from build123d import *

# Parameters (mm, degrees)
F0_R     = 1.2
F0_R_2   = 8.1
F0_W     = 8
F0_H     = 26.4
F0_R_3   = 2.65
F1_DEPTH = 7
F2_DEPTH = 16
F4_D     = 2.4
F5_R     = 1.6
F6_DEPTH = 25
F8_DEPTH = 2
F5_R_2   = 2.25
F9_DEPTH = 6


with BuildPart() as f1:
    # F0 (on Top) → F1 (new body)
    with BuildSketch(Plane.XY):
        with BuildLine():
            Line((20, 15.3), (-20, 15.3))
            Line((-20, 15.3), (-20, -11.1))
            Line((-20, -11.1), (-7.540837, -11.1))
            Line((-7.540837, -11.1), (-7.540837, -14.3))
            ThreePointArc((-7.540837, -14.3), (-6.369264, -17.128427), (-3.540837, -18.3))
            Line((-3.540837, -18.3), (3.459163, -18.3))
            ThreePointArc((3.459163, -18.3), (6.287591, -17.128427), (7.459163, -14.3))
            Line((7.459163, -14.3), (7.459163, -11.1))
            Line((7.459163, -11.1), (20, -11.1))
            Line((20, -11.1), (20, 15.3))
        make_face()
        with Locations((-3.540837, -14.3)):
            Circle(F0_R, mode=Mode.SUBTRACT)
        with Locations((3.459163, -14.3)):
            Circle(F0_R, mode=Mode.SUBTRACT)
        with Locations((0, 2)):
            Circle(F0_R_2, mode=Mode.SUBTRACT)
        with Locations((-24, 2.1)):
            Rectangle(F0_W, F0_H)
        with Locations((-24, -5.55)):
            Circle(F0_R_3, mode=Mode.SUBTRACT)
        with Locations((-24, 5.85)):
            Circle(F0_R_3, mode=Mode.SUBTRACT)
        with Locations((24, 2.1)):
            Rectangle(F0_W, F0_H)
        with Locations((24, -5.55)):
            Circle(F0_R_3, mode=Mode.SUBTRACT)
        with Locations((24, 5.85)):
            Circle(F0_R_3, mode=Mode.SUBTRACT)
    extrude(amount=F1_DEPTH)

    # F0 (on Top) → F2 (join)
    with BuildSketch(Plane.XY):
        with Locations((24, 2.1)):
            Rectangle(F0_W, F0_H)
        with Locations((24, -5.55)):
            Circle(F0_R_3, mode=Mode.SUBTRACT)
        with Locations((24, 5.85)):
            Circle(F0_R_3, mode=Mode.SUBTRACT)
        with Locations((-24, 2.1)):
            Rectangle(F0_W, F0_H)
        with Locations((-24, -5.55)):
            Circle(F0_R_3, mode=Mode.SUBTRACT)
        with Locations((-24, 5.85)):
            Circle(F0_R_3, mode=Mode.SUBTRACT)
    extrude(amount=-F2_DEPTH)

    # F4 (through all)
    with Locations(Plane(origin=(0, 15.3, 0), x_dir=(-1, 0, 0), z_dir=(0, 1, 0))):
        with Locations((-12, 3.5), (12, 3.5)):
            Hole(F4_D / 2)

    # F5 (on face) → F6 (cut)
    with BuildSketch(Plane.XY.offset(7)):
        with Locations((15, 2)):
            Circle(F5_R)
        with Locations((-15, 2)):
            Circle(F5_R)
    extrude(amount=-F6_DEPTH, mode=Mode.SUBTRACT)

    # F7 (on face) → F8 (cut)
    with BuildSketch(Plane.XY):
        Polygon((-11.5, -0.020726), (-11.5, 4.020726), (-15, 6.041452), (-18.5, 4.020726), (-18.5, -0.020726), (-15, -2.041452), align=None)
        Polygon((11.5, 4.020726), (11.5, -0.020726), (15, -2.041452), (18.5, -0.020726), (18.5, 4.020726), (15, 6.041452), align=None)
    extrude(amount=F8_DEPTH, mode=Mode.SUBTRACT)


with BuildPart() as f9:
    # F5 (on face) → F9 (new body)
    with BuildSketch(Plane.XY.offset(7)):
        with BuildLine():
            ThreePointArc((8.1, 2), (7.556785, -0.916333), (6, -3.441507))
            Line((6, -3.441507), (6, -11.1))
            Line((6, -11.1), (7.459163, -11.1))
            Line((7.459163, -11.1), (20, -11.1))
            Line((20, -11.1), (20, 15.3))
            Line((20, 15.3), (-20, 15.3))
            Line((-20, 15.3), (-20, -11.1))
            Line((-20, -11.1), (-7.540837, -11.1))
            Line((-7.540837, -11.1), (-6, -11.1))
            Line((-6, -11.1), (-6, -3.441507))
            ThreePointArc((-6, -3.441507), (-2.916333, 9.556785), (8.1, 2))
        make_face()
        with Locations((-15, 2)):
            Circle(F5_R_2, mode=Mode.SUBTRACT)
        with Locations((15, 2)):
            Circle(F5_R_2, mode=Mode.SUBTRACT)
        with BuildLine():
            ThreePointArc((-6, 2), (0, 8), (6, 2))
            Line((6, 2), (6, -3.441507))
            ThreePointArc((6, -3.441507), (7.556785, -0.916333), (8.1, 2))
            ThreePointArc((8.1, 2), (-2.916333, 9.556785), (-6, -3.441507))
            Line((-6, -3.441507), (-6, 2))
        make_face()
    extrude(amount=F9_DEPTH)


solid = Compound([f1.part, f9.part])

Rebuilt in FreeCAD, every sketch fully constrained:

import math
import FreeCAD as App
import Part
import Sketcher
from FreeCAD import Vector
Q = App.Units.Quantity

doc = App.newDocument("Part")
body = doc.addObject("PartDesign::Body", "Body")

# Sketch on XY plane
sketch1 = body.newObject("Sketcher::SketchObject", "Sketch")
sketch1.AttachmentSupport = (doc.getObject("XY_Plane"), [""])
sketch1.MapMode = "FlatFace"
sketch1.addGeometry([
    Part.LineSegment(Vector(-28, 15.3, 0), Vector(-28, -11.1, 0)),  # 0
    Part.LineSegment(Vector(-28, -11.1, 0), Vector(-7.5, -11.1, 0)),  # 1
    Part.LineSegment(Vector(-7.5, -11.1, 0), Vector(-7.5, -14.3, 0)),  # 2
    Part.ArcOfCircle(Part.Circle(Vector(-3.5, -14.3, 0), Vector(0, 0, 1), 4), math.radians(-180), math.radians(-90)),  # 3
    Part.LineSegment(Vector(-3.5, -18.3, 0), Vector(3.5, -18.3, 0)),  # 4
    Part.ArcOfCircle(Part.Circle(Vector(3.5, -14.3, 0), Vector(0, 0, 1), 4), math.radians(-90), math.radians(0)),  # 5
    Part.LineSegment(Vector(7.5, -14.3, 0), Vector(7.5, -11.1, 0)),  # 6
    Part.LineSegment(Vector(7.5, -11.1, 0), Vector(28, -11.1, 0)),  # 7
    Part.LineSegment(Vector(28, -11.1, 0), Vector(28, 15.3, 0)),  # 8
    Part.LineSegment(Vector(28, 15.3, 0), Vector(-28, 15.3, 0)),  # 9
    Part.Circle(Vector(-3.5, -14.3, 0), Vector(0, 0, 1), 1.2),  # 10
    Part.Circle(Vector(-24, -5.5, 0), Vector(0, 0, 1), 2.6),  # 11
    Part.Circle(Vector(3.5, -14.3, 0), Vector(0, 0, 1), 1.2),  # 12
    Part.Circle(Vector(24, -5.5, 0), Vector(0, 0, 1), 2.6),  # 13
    Part.Circle(Vector(-24, 5.8, 0), Vector(0, 0, 1), 2.6),  # 14
    Part.Circle(Vector(0, 2, 0), Vector(0, 0, 1), 8.1),  # 15
    Part.Circle(Vector(24, 5.8, 0), Vector(0, 0, 1), 2.6),  # 16
], False)
sketch1.addConstraint([
    Sketcher.Constraint("Coincident", 0, 2, 1, 1),
    Sketcher.Constraint("Coincident", 1, 2, 2, 1),
    Sketcher.Constraint("Tangent", 2, 2, 3, 1),
    Sketcher.Constraint("Tangent", 3, 2, 4, 1),
    Sketcher.Constraint("Tangent", 4, 2, 5, 1),
    Sketcher.Constraint("Tangent", 5, 2, 6, 1),
    Sketcher.Constraint("Coincident", 6, 2, 7, 1),
    Sketcher.Constraint("Coincident", 7, 2, 8, 1),
    Sketcher.Constraint("Coincident", 8, 2, 9, 1),
    Sketcher.Constraint("Coincident", 9, 2, 0, 1),
    Sketcher.Constraint("Vertical", 0),
    Sketcher.Constraint("Horizontal", 1),
    Sketcher.Constraint("Vertical", 2),
    Sketcher.Constraint("Horizontal", 4),
    Sketcher.Constraint("Vertical", 6),
    Sketcher.Constraint("Horizontal", 7),
    Sketcher.Constraint("Vertical", 8),
    Sketcher.Constraint("Horizontal", 9),
    Sketcher.Constraint("Coincident", 10, 3, 3, 3),
    Sketcher.Constraint("Coincident", 12, 3, 5, 3),
    Sketcher.Constraint("Equal", 3, 5),
    Sketcher.Constraint("Equal", 10, 12),
    Sketcher.Constraint("Equal", 11, 13),
    Sketcher.Constraint("Equal", 13, 14),
    Sketcher.Constraint("Equal", 14, 16),
    Sketcher.Constraint("Symmetric", 11, 3, 13, 3, -2),
    Sketcher.Constraint("Symmetric", 14, 3, 16, 3, -2),
    Sketcher.Constraint("Symmetric", 0, 2, 7, 2, -2),
    Sketcher.Constraint("PointOnObject", 15, 3, -2),
    Sketcher.Constraint("Vertical", 11, 3, 14, 3),
    Sketcher.Constraint("Radius", 3, 4.0),
    Sketcher.Constraint("Diameter", 10, 2.4),
    Sketcher.Constraint("Diameter", 11, 5.3),
    Sketcher.Constraint("Diameter", 15, 16.2),
    Sketcher.Constraint("DistanceX", 4, 1, 4, 2, 7.0),
    Sketcher.Constraint("DistanceX", 9, 2, 9, 1, 56.0),
    Sketcher.Constraint("DistanceY", 0, 2, 0, 1, 26.4),
    Sketcher.Constraint("DistanceY", 2, 2, 2, 1, 3.2),
    Sketcher.Constraint("DistanceX", 11, 3, -1, 1, 24.0),
    Sketcher.Constraint("DistanceY", -1, 1, 15, 3, 2.0),
    Sketcher.Constraint("DistanceY", 3, 3, -1, 1, 14.3),
    Sketcher.Constraint("DistanceY", 11, 3, 14, 3, 11.4),
    Sketcher.Constraint("DistanceY", 11, 3, -1, 1, 5.55),
    Sketcher.Constraint("DistanceX", 1, 1, 1, 2, 20.459163),
])
pad1 = body.newObject("PartDesign::Pad", "Pad")
pad1.Profile = sketch1
pad1.Length = 7

# Sketch on XY plane
sketch2 = body.newObject("Sketcher::SketchObject", "Sketch001")
sketch2.AttachmentSupport = (doc.getObject("XY_Plane"), [""])
sketch2.MapMode = "FlatFace"
sketch2.addGeometry([
    Part.LineSegment(Vector(20, 15.3, 0), Vector(20, -11.1, 0)),  # 0
    Part.LineSegment(Vector(20, -11.1, 0), Vector(28, -11.1, 0)),  # 1
    Part.LineSegment(Vector(28, -11.1, 0), Vector(28, 15.3, 0)),  # 2
    Part.LineSegment(Vector(28, 15.3, 0), Vector(20, 15.3, 0)),  # 3
    Part.Circle(Vector(24, -5.5, 0), Vector(0, 0, 1), 2.6),  # 4
    Part.Circle(Vector(24, 5.8, 0), Vector(0, 0, 1), 2.6),  # 5
    Part.LineSegment(Vector(-28, 15.3, 0), Vector(-28, -11.1, 0)),  # 6
    Part.LineSegment(Vector(-28, -11.1, 0), Vector(-20, -11.1, 0)),  # 7
    Part.LineSegment(Vector(-20, -11.1, 0), Vector(-20, 15.3, 0)),  # 8
    Part.LineSegment(Vector(-20, 15.3, 0), Vector(-28, 15.3, 0)),  # 9
    Part.Circle(Vector(-24, -5.5, 0), Vector(0, 0, 1), 2.6),  # 10
    Part.Circle(Vector(-24, 5.8, 0), Vector(0, 0, 1), 2.6),  # 11
], False)
sketch2.addConstraint([
    Sketcher.Constraint("Coincident", 0, 2, 1, 1),
    Sketcher.Constraint("Coincident", 1, 2, 2, 1),
    Sketcher.Constraint("Coincident", 2, 2, 3, 1),
    Sketcher.Constraint("Coincident", 3, 2, 0, 1),
    Sketcher.Constraint("Coincident", 6, 2, 7, 1),
    Sketcher.Constraint("Coincident", 7, 2, 8, 1),
    Sketcher.Constraint("Coincident", 8, 2, 9, 1),
    Sketcher.Constraint("Coincident", 9, 2, 6, 1),
    Sketcher.Constraint("Vertical", 0),
    Sketcher.Constraint("Horizontal", 1),
    Sketcher.Constraint("Vertical", 2),
    Sketcher.Constraint("Horizontal", 3),
    Sketcher.Constraint("Vertical", 6),
    Sketcher.Constraint("Horizontal", 7),
    Sketcher.Constraint("Vertical", 8),
    Sketcher.Constraint("Horizontal", 9),
    Sketcher.Constraint("Equal", 4, 5),
    Sketcher.Constraint("Equal", 5, 10),
    Sketcher.Constraint("Equal", 10, 11),
    Sketcher.Constraint("Symmetric", 4, 3, 10, 3, -2),
    Sketcher.Constraint("Symmetric", 5, 3, 11, 3, -2),
    Sketcher.Constraint("Symmetric", 1, 2, 6, 2, -2),
    Sketcher.Constraint("Symmetric", 3, 2, 8, 2, -2),
    Sketcher.Constraint("Vertical", 4, 3, 5, 3),
    Sketcher.Constraint("Diameter", 4, 5.3),
    Sketcher.Constraint("DistanceX", 1, 1, 1, 2, 8.0),
    Sketcher.Constraint("DistanceY", 0, 2, 0, 1, 26.4),
    Sketcher.Constraint("DistanceX", -1, 1, 4, 3, 24.0),
    Sketcher.Constraint("DistanceX", -1, 1, 0, 2, 20.0),
    Sketcher.Constraint("DistanceY", 0, 2, -1, 1, 11.1),
    Sketcher.Constraint("DistanceY", 4, 3, 5, 3, 11.4),
    Sketcher.Constraint("DistanceY", 4, 3, -1, 1, 5.55),
])
pad2 = body.newObject("PartDesign::Pad", "Pad001")
pad2.Profile = sketch2
pad2.Length = 16
pad2.Reversed = True

# Sketch on XZ plane
sketch3 = body.newObject("Sketcher::SketchObject", "Sketch002")
sketch3.AttachmentSupport = (doc.getObject("XZ_Plane"), [""])
sketch3.MapMode = "FlatFace"
sketch3.AttachmentOffset = App.Placement(Vector(0, 0, -15.3), App.Rotation())
sketch3.addGeometry([
    Part.Circle(Vector(12, 3.5, 0), Vector(0, 0, 1), 1.2),
    Part.Circle(Vector(-12, 3.5, 0), Vector(0, 0, 1), 1.2),
], False)
sketch3.addConstraint([
    Sketcher.Constraint("Equal", 0, 1),
    Sketcher.Constraint("Symmetric", 0, 3, 1, 3, -2),
    Sketcher.Constraint("Diameter", 0, 2.4),
    Sketcher.Constraint("DistanceX", -1, 1, 0, 3, 12.0),
    Sketcher.Constraint("DistanceY", -1, 1, 0, 3, 3.5),
])
doc.recompute()
hole = body.newObject("PartDesign::Hole", "Hole")
hole.Profile = sketch3
hole.ThreadType = "None"
hole.Diameter = 2.4
hole.DepthType = "ThroughAll"
hole.Reversed = True

# Sketch on XY plane
sketch4 = body.newObject("Sketcher::SketchObject", "Sketch003")
sketch4.AttachmentSupport = (doc.getObject("XY_Plane"), [""])
sketch4.MapMode = "FlatFace"
sketch4.AttachmentOffset = App.Placement(Vector(0, 0, 7), App.Rotation())
sketch4.addGeometry([
    Part.Circle(Vector(15, 2, 0), Vector(0, 0, 1), 1.6),
    Part.Circle(Vector(-15, 2, 0), Vector(0, 0, 1), 1.6),
], False)
sketch4.addConstraint([
    Sketcher.Constraint("Equal", 0, 1),
    Sketcher.Constraint("Symmetric", 0, 3, 1, 3, -2),
    Sketcher.Constraint("Diameter", 0, 3.2),
    Sketcher.Constraint("DistanceX", -1, 1, 0, 3, 15.0),
    Sketcher.Constraint("DistanceY", -1, 1, 0, 3, 2.0),
])
pocket1 = body.newObject("PartDesign::Pocket", "Pocket")
pocket1.Profile = sketch4
pocket1.Length = 25

# Sketch on XY plane
sketch5 = body.newObject("Sketcher::SketchObject", "Sketch004")
sketch5.AttachmentSupport = (doc.getObject("XY_Plane"), [""])
sketch5.MapMode = "FlatFace"
sketch5.addGeometry([
    Part.LineSegment(Vector(-11.5, 0, 0), Vector(-11.5, 4, 0)),  # 0
    Part.LineSegment(Vector(-11.5, 4, 0), Vector(-15, 6, 0)),  # 1
    Part.LineSegment(Vector(-15, 6, 0), Vector(-18.5, 4, 0)),  # 2
    Part.LineSegment(Vector(-18.5, 4, 0), Vector(-18.5, 0, 0)),  # 3
    Part.LineSegment(Vector(-18.5, 0, 0), Vector(-15, -2, 0)),  # 4
    Part.LineSegment(Vector(-15, -2, 0), Vector(-11.5, 0, 0)),  # 5
    Part.LineSegment(Vector(11.5, 4, 0), Vector(11.5, 0, 0)),  # 6
    Part.LineSegment(Vector(11.5, 0, 0), Vector(15, -2, 0)),  # 7
    Part.LineSegment(Vector(15, -2, 0), Vector(18.5, 0, 0)),  # 8
    Part.LineSegment(Vector(18.5, 0, 0), Vector(18.5, 4, 0)),  # 9
    Part.LineSegment(Vector(18.5, 4, 0), Vector(15, 6, 0)),  # 10
    Part.LineSegment(Vector(15, 6, 0), Vector(11.5, 4, 0)),  # 11
], False)
sketch5.addConstraint([
    Sketcher.Constraint("Coincident", 0, 2, 1, 1),
    Sketcher.Constraint("Coincident", 1, 2, 2, 1),
    Sketcher.Constraint("Coincident", 2, 2, 3, 1),
    Sketcher.Constraint("Coincident", 3, 2, 4, 1),
    Sketcher.Constraint("Coincident", 4, 2, 5, 1),
    Sketcher.Constraint("Coincident", 5, 2, 0, 1),
    Sketcher.Constraint("Coincident", 6, 2, 7, 1),
    Sketcher.Constraint("Coincident", 7, 2, 8, 1),
    Sketcher.Constraint("Coincident", 8, 2, 9, 1),
    Sketcher.Constraint("Coincident", 9, 2, 10, 1),
    Sketcher.Constraint("Coincident", 10, 2, 11, 1),
    Sketcher.Constraint("Coincident", 11, 2, 6, 1),
    Sketcher.Constraint("Vertical", 0),
    Sketcher.Constraint("Vertical", 3),
    Sketcher.Constraint("Vertical", 6),
    Sketcher.Constraint("Vertical", 9),
    Sketcher.Constraint("Symmetric", 5, 2, 6, 2, -2),
    Sketcher.Constraint("Symmetric", 4, 2, 7, 2, -2),
    Sketcher.Constraint("Symmetric", 3, 2, 8, 2, -2),
    Sketcher.Constraint("Symmetric", 1, 2, 10, 2, -2),
    Sketcher.Constraint("Parallel", 1, 4),
    Sketcher.Constraint("Parallel", 2, 5),
    Sketcher.Constraint("Parallel", 4, 7),
    Sketcher.Constraint("Parallel", 7, 10),
    Sketcher.Constraint("Parallel", 8, 11),
    Sketcher.Constraint("Horizontal", 0, 2, 2, 2),
    Sketcher.Constraint("Horizontal", 3, 2, 5, 2),
    Sketcher.Constraint("Angle", 1, Q("149.999999 deg")),
    Sketcher.Constraint("DistanceX", 1, 2, -1, 1, 15.0),
    Sketcher.Constraint("DistanceX", 2, 2, 0, 2, 7.0),
    Sketcher.Constraint("DistanceY", 0, 1, 0, 2, 4.041452),
    Sketcher.Constraint("DistanceY", -1, 1, 1, 2, 6.041452),
])
pocket2 = body.newObject("PartDesign::Pocket", "Pocket001")
pocket2.Profile = sketch5
pocket2.Length = 2
pocket2.Reversed = True
body2 = doc.addObject("PartDesign::Body", "Body001")

# Sketch on XY plane
sketch6 = body2.newObject("Sketcher::SketchObject", "Sketch005")
sketch6.AttachmentSupport = (doc.getObject("XY_Plane001"), [""])
sketch6.MapMode = "FlatFace"
sketch6.AttachmentOffset = App.Placement(Vector(0, 0, 7), App.Rotation())
sketch6.addGeometry([
    Part.LineSegment(Vector(6, -11.1, 0), Vector(20, -11.1, 0)),  # 0
    Part.LineSegment(Vector(20, -11.1, 0), Vector(20, 15.3, 0)),  # 1
    Part.LineSegment(Vector(20, 15.3, 0), Vector(-20, 15.3, 0)),  # 2
    Part.LineSegment(Vector(-20, 15.3, 0), Vector(-20, -11.1, 0)),  # 3
    Part.LineSegment(Vector(-20, -11.1, 0), Vector(-6, -11.1, 0)),  # 4
    Part.LineSegment(Vector(-6, -11.1, 0), Vector(-6, 2, 0)),  # 5
    Part.ArcOfCircle(Part.Circle(Vector(0, 2, 0), Vector(0, 0, 1), 6), math.radians(0), math.radians(180)),  # 6
    Part.LineSegment(Vector(6, 2, 0), Vector(6, -11.1, 0)),  # 7
    Part.Circle(Vector(-15, 2, 0), Vector(0, 0, 1), 2.2),  # 8
    Part.Circle(Vector(15, 2, 0), Vector(0, 0, 1), 2.2),  # 9
], False)
sketch6.addConstraint([
    Sketcher.Constraint("Coincident", 0, 2, 1, 1),
    Sketcher.Constraint("Coincident", 1, 2, 2, 1),
    Sketcher.Constraint("Coincident", 2, 2, 3, 1),
    Sketcher.Constraint("Coincident", 3, 2, 4, 1),
    Sketcher.Constraint("Coincident", 4, 2, 5, 1),
    Sketcher.Constraint("Tangent", 5, 2, 6, 2),
    Sketcher.Constraint("Tangent", 6, 1, 7, 1),
    Sketcher.Constraint("Coincident", 7, 2, 0, 1),
    Sketcher.Constraint("Horizontal", 0),
    Sketcher.Constraint("Vertical", 1),
    Sketcher.Constraint("Horizontal", 2),
    Sketcher.Constraint("Vertical", 3),
    Sketcher.Constraint("Horizontal", 4),
    Sketcher.Constraint("Vertical", 5),
    Sketcher.Constraint("Vertical", 7),
    Sketcher.Constraint("Equal", 8, 9),
    Sketcher.Constraint("Symmetric", 8, 3, 9, 3, -2),
    Sketcher.Constraint("Symmetric", 0, 2, 3, 2, -2),
    Sketcher.Constraint("PointOnObject", 6, 3, -2),
    Sketcher.Constraint("Horizontal", 6, 3, 8, 3),
    Sketcher.Constraint("Radius", 6, 6.0),
    Sketcher.Constraint("Diameter", 8, 4.5),
    Sketcher.Constraint("DistanceX", 0, 1, 0, 2, 14.0),
    Sketcher.Constraint("DistanceY", 1, 1, 1, 2, 26.4),
    Sketcher.Constraint("DistanceY", 5, 1, 5, 2, 13.1),
    Sketcher.Constraint("DistanceY", -1, 1, 6, 3, 2.0),
    Sketcher.Constraint("DistanceX", 8, 3, -1, 1, 15.0),
])
pad3 = body2.newObject("PartDesign::Pad", "Pad002")
pad3.Profile = sketch6
pad3.Length = 6

doc.recompute()
